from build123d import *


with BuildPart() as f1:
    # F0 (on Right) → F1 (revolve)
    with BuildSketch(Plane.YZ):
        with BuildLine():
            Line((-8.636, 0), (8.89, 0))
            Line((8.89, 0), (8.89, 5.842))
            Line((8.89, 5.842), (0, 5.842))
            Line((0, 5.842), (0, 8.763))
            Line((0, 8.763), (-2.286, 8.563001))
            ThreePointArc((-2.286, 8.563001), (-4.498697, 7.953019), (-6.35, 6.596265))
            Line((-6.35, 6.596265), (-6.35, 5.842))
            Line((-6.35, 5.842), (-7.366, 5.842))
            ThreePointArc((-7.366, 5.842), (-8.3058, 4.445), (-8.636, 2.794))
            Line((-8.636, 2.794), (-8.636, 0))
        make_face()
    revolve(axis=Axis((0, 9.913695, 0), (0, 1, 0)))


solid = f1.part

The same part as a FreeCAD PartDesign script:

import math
import FreeCAD as App
import Part
import Sketcher
from FreeCAD import Vector
Q = App.Units.Quantity

doc = App.newDocument("Part")
body = doc.addObject("PartDesign::Body", "Body")

# Sketch on YZ plane
sketch1 = body.newObject("Sketcher::SketchObject", "Sketch")
sketch1.AttachmentSupport = (doc.getObject("YZ_Plane"), [""])
sketch1.MapMode = "FlatFace"
sketch1.addGeometry(Part.LineSegment(Vector(-8.636, 0, 0), Vector(8.89, 0, 0)), False)
sketch1.addGeometry(Part.LineSegment(Vector(8.89, 0, 0), Vector(8.89, 5.842, 0)), False)
sketch1.addGeometry(Part.LineSegment(Vector(8.89, 5.842, 0), Vector(0, 5.842, 0)), False)
sketch1.addGeometry(Part.LineSegment(Vector(0, 5.842, 0), Vector(0, 8.763, 0)), False)
sketch1.addGeometry(Part.LineSegment(Vector(0, 8.763, 0), Vector(-2.286, 8.563001, 0)), False)
sketch1.addGeometry(Part.ArcOfCircle(Part.Circle(Vector(-1.732561, 2.237165, 0), Vector(0, 0, 1), 6.35), math.radians(95.000002), math.radians(136.648479)), False)
sketch1.addGeometry(Part.LineSegment(Vector(-6.35, 6.596265, 0), Vector(-6.35, 5.842, 0)), False)
sketch1.addGeometry(Part.LineSegment(Vector(-6.35, 5.842, 0), Vector(-7.366, 5.842, 0)), False)
sketch1.addGeometry(Part.ArcOfCircle(Part.Circle(Vector(-4.3434, 2.794, 0), Vector(0, 0, 1), 4.2926), math.radians(134.76027), math.radians(180)), False)
sketch1.addGeometry(Part.LineSegment(Vector(-8.636, 2.794, 0), Vector(-8.636, 0, 0)), False)
sketch1.addConstraint(Sketcher.Constraint("Coincident", 0, 2, 1, 1))
sketch1.addConstraint(Sketcher.Constraint("Coincident", 1, 2, 2, 1))
sketch1.addConstraint(Sketcher.Constraint("Coincident", 2, 2, 3, 1))
sketch1.addConstraint(Sketcher.Constraint("Coincident", 3, 2, 4, 1))
sketch1.addConstraint(Sketcher.Constraint("Tangent", 4, 2, 5, 1))
sketch1.addConstraint(Sketcher.Constraint("Coincident", 5, 2, 6, 1))
sketch1.addConstraint(Sketcher.Constraint("Coincident", 6, 2, 7, 1))
sketch1.addConstraint(Sketcher.Constraint("Coincident", 7, 2, 8, 1))
sketch1.addConstraint(Sketcher.Constraint("Tangent", 8, 2, 9, 1))
sketch1.addConstraint(Sketcher.Constraint("Coincident", 9, 2, 0, 1))
sketch1.addConstraint(Sketcher.Constraint("Horizontal", 0))
sketch1.addConstraint(Sketcher.Constraint("Vertical", 1))
sketch1.addConstraint(Sketcher.Constraint("Horizontal", 2))
sketch1.addConstraint(Sketcher.Constraint("Vertical", 3))
sketch1.addConstraint(Sketcher.Constraint("Vertical", 6))
sketch1.addConstraint(Sketcher.Constraint("Horizontal", 7))
sketch1.addConstraint(Sketcher.Constraint("Vertical", 9))
sketch1.addConstraint(Sketcher.Constraint("PointOnObject", 0, 2, -1))
sketch1.addConstraint(Sketcher.Constraint("PointOnObject", 2, 2, -2))
sketch1.addConstraint(Sketcher.Constraint("Horizontal", 2, 2, 6, 2))
sketch1.addConstraint(Sketcher.Constraint("Radius", 5, Q("0.25 in")))
sketch1.addConstraint(Sketcher.Constraint("Angle", 4, Q("-175.000002 deg")))
sketch1.addConstraint(Sketcher.Constraint("Radius", 8, Q("0.169 in")))
sketch1.addConstraint(Sketcher.Constraint("DistanceX", 0, 1, 0, 2, Q("0.69 in")))
sketch1.addConstraint(Sketcher.Constraint("DistanceX", 2, 2, 2, 1, Q("0.35 in")))
sketch1.addConstraint(Sketcher.Constraint("DistanceX", 7, 2, 7, 1, Q("0.04 in")))
sketch1.addConstraint(Sketcher.Constraint("DistanceY", 1, 1, 1, 2, Q("0.23 in")))
sketch1.addConstraint(Sketcher.Constraint("DistanceY", 9, 2, 9, 1, Q("0.11 in")))
sketch1.addConstraint(Sketcher.Constraint("DistanceX", 7, 2, 4, 2, Q("0.2 in")))
sketch1.addConstraint(Sketcher.Constraint("DistanceY", 3, 1, 3, 2, Q("0.115 in")))
revolution = body.newObject("PartDesign::Revolution", "Revolution")
revolution.Profile = sketch1
revolution.ReferenceAxis = (sketch1, ["H_Axis"])
revolution.Angle = 360

doc.recompute()
